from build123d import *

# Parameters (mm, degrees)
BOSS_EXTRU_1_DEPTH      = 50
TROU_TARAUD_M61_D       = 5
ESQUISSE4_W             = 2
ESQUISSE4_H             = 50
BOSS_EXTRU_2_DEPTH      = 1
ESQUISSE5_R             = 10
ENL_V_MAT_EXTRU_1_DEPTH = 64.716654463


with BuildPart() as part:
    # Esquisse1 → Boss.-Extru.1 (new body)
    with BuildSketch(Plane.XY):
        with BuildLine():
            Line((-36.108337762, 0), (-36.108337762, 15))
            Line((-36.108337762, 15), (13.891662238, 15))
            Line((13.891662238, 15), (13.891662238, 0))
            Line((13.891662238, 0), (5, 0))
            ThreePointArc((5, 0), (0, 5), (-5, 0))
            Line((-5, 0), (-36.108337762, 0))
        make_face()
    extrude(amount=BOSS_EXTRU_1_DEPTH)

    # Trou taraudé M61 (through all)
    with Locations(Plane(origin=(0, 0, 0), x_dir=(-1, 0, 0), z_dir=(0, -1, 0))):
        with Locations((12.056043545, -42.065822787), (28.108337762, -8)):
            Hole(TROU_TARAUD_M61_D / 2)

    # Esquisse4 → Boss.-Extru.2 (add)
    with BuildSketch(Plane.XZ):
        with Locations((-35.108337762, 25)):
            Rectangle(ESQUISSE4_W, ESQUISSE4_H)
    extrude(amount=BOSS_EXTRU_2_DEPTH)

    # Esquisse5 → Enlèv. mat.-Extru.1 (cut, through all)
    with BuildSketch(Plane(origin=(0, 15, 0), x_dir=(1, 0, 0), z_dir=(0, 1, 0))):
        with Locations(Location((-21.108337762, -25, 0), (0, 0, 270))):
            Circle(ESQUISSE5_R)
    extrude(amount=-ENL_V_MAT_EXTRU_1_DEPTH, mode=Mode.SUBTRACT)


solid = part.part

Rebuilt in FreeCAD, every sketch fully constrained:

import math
import FreeCAD as App
import Part
import Sketcher

V = App.Vector
Q = App.Units.Quantity


def add_polygon(sketch, points):
    """Adds a closed chain of lines whose ends are joined by coincident constraints."""
    first, n = sketch.GeometryCount, len(points)
    for a, b in zip(points, points[1:] + points[:1]):
        sketch.addGeometry(Part.LineSegment(App.Vector(*a, 0), App.Vector(*b, 0)), False)
    for i in range(n):
        sketch.addConstraint(Sketcher.Constraint("Coincident", first + i, 2, first + (i + 1) % n, 1))

doc = App.newDocument("Part")
body = doc.addObject("PartDesign::Body", "Body")

# Sketch on XY plane
sketch1 = body.newObject("Sketcher::SketchObject", "Sketch")
sketch1.AttachmentSupport = (doc.getObject("XY_Plane"), [""])
sketch1.MapMode = "FlatFace"
sketch1.addGeometry([
    Part.LineSegment(V(-36, 15, 0), V(-36, 0, 0)),  # 0
    Part.LineSegment(V(-36, 0, 0), V(-5, 0, 0)),  # 1
    Part.ArcOfCircle(Part.Circle(V(0, 0, 0), V(0, 0, 1), 5), math.radians(0), math.radians(180)),  # 2
    Part.LineSegment(V(5, 0, 0), V(14, 0, 0)),  # 3
    Part.LineSegment(V(14, 0, 0), V(14, 15, 0)),  # 4
    Part.LineSegment(V(14, 15, 0), V(-36, 15, 0)),  # 5
], False)
sketch1.addConstraint([
    Sketcher.Constraint("Coincident", 0, 2, 1, 1),
    Sketcher.Constraint("Coincident", 1, 2, 2, 2),
    Sketcher.Constraint("Coincident", 2, 1, 3, 1),
    Sketcher.Constraint("Coincident", 3, 2, 4, 1),
    Sketcher.Constraint("Coincident", 4, 2, 5, 1),
    Sketcher.Constraint("Coincident", 5, 2, 0, 1),
    Sketcher.Constraint("Vertical", 0),
    Sketcher.Constraint("Horizontal", 1),
    Sketcher.Constraint("Horizontal", 3),
    Sketcher.Constraint("Vertical", 4),
    Sketcher.Constraint("Horizontal", 5),
    Sketcher.Constraint("Coincident", 2, 3, -1, 1),
    Sketcher.Constraint("PointOnObject", 0, 2, -1),
    Sketcher.Constraint("PointOnObject", 2, 1, -1),
    Sketcher.Constraint("Radius", 2, Q("5 mm")),
    Sketcher.Constraint("DistanceX", 5, 2, 5, 1, Q("50 mm")),
    Sketcher.Constraint("DistanceY", 0, 2, 0, 1, Q("15 mm")),
    Sketcher.Constraint("DistanceX", 1, 1, 1, 2, Q("31.108338 mm")),
])
pad1 = body.newObject("PartDesign::Pad", "Pad")
pad1.Profile = sketch1
pad1.Length = 50

# Sketch on XZ plane
sketch2 = body.newObject("Sketcher::SketchObject", "Sketch001")
sketch2.AttachmentSupport = (doc.getObject("XZ_Plane"), [""])
sketch2.MapMode = "FlatFace"
sketch2.addGeometry([
    Part.Circle(V(-12.1, 42.1, 0), V(0, 0, 1), 2.5),
    Part.Circle(V(-28.1, 8, 0), V(0, 0, 1), 2.5),
], False)
sketch2.addConstraint([
    Sketcher.Constraint("Equal", 0, 1),
    Sketcher.Constraint("Diameter", 0, Q("5 mm")),
    Sketcher.Constraint("DistanceY", -1, 1, 1, 3, Q("8 mm")),
    Sketcher.Constraint("DistanceX", 0, 3, -1, 1, Q("12.056044 mm")),
    Sketcher.Constraint("DistanceY", -1, 1, 0, 3, Q("42.065823 mm")),
    Sketcher.Constraint("DistanceX", 1, 3, -1, 1, Q("28.108338 mm")),
])
doc.recompute()
hole = body.newObject("PartDesign::Hole", "Hole")
hole.Profile = sketch2
hole.ThreadType = "None"
hole.Diameter = 5
hole.DepthType = "ThroughAll"

# Sketch on XZ plane
sketch3 = body.newObject("Sketcher::SketchObject", "Sketch002")
sketch3.AttachmentSupport = (doc.getObject("XZ_Plane"), [""])
sketch3.MapMode = "FlatFace"
add_polygon(sketch3, [(-36.1, 50), (-36.1, 0), (-34.1, 0), (-34.1, 50)])  # lines 0-3
sketch3.addConstraint([
    Sketcher.Constraint("Vertical", 0),
    Sketcher.Constraint("Horizontal", 1),
    Sketcher.Constraint("Vertical", 2),
    Sketcher.Constraint("Horizontal", 3),
    Sketcher.Constraint("PointOnObject", 0, 2, -1),
    Sketcher.Constraint("DistanceX", 1, 1, 1, 2, Q("2 mm")),
    Sketcher.Constraint("DistanceY", 0, 2, 0, 1, Q("50 mm")),
    Sketcher.Constraint("DistanceX", 0, 2, -1, 1, Q("36.108338 mm")),
])
pad2 = body.newObject("PartDesign::Pad", "Pad001")
pad2.Profile = sketch3
pad2.Length = 1

# Sketch on XZ plane
sketch4 = body.newObject("Sketcher::SketchObject", "Sketch003")
sketch4.AttachmentSupport = (doc.getObject("XZ_Plane"), [""])
sketch4.MapMode = "FlatFace"
sketch4.AttachmentOffset = App.Placement(V(0, 0, -15), App.Rotation())
sketch4.addGeometry(Part.Circle(V(-21, 25, 0), V(0, 0, 1), 10), False)
sketch4.addConstraint([
    Sketcher.Constraint("Diameter", 0, Q("20 mm")),
    Sketcher.Constraint("DistanceY", -1, 1, 0, 3, Q("25 mm")),
    Sketcher.Constraint("DistanceX", 0, 3, -1, 1, Q("21.108338 mm")),
])
pocket1 = body.newObject("PartDesign::Pocket", "Pocket")
pocket1.Profile = sketch4
pocket1.Type = "ThroughAll"
pocket1.Reversed = True

doc.recompute()
